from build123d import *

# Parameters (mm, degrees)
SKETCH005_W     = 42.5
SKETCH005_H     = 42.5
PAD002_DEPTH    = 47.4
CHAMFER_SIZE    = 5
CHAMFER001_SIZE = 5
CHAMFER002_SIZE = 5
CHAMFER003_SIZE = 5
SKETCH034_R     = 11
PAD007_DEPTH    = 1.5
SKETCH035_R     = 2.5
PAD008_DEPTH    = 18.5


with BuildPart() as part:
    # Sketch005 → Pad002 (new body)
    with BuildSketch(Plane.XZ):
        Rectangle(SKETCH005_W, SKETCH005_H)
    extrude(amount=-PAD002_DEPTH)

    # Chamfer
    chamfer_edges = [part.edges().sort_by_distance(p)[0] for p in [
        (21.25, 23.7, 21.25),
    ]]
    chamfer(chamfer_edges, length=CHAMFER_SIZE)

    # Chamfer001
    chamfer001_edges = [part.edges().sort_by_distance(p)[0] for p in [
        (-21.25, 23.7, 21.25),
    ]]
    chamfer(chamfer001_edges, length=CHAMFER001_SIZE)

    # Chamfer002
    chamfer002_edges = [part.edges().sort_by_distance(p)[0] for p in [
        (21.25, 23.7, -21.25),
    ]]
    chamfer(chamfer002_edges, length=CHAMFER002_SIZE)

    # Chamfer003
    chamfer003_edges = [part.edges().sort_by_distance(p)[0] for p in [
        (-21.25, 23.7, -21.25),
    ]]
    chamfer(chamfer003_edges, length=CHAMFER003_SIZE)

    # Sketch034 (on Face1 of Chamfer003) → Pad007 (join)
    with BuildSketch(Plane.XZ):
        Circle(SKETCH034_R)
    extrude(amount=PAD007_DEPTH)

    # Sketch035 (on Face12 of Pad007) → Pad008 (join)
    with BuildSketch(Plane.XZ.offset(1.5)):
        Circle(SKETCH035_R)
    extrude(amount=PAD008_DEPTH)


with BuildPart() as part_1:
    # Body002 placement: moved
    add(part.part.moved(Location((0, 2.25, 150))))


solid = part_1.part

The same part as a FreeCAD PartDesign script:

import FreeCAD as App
import Part
import Sketcher
from FreeCAD import Vector
Q = App.Units.Quantity


def edges_at(feature, points):
    """Names of the edges that pass closest to the given points."""
    edges = feature.Shape.Edges
    near = lambda p: min(range(len(edges)), key=lambda i: edges[i].distToShape(Part.Vertex(*p))[0])
    return sorted({f"Edge{near(p) + 1}" for p in points})

doc = App.newDocument("Part")
body = doc.addObject("PartDesign::Body", "Body")

sketch1 = body.newObject("Sketcher::SketchObject", "Sketch")
sketch1.AttachmentSupport = (doc.getObject("XZ_Plane"), [""])
sketch1.MapMode = "FlatFace"
sketch1.addGeometry([
    Part.LineSegment(Vector(-21, 21, 0), Vector(-21, -21, 0)),
    Part.LineSegment(Vector(-21, -21, 0), Vector(21, -21, 0)),
    Part.LineSegment(Vector(21, -21, 0), Vector(21, 21, 0)),
    Part.LineSegment(Vector(21, 21, 0), Vector(-21, 21, 0)),
], False)
sketch1.addConstraint([
    Sketcher.Constraint("Coincident", 0, 2, 1, 1),
    Sketcher.Constraint("Coincident", 1, 2, 2, 1),
    Sketcher.Constraint("Coincident", 2, 2, 3, 1),
    Sketcher.Constraint("Coincident", 3, 2, 0, 1),
    Sketcher.Constraint("Vertical", 0),
    Sketcher.Constraint("Horizontal", 1),
    Sketcher.Constraint("Vertical", 2),
    Sketcher.Constraint("Horizontal", 3),
    Sketcher.Constraint("Symmetric", 0, 2, 2, 2, -1, 1),
    Sketcher.Constraint("Equal", 3, 0),
    Sketcher.Constraint("DistanceX", 1, 1, 1, 2, Q("42.5 mm")),
])
pad1 = body.newObject("PartDesign::Pad", "Pad")
pad1.Profile = sketch1
pad1.Length = 47.4
pad1.Reversed = True
doc.recompute()

chamfer = body.newObject("PartDesign::Chamfer", "Chamfer")
chamfer.Base = (pad1, edges_at(pad1, [(21.25, 23.7, 21.25)]))
chamfer.Size = 5
doc.recompute()

chamfer2 = body.newObject("PartDesign::Chamfer", "Chamfer001")
chamfer2.Base = (chamfer, edges_at(chamfer, [(-21.25, 23.7, 21.25)]))
chamfer2.Size = 5
doc.recompute()

chamfer3 = body.newObject("PartDesign::Chamfer", "Chamfer002")
chamfer3.Base = (chamfer2, edges_at(chamfer2, [(21.25, 23.7, -21.25)]))
chamfer3.Size = 5
doc.recompute()

chamfer4 = body.newObject("PartDesign::Chamfer", "Chamfer003")
chamfer4.Base = (chamfer3, edges_at(chamfer3, [(-21.25, 23.7, -21.25)]))
chamfer4.Size = 5

sketch2 = body.newObject("Sketcher::SketchObject", "Sketch001")
sketch2.AttachmentSupport = (doc.getObject("XZ_Plane"), [""])
sketch2.MapMode = "FlatFace"
sketch2.addGeometry(Part.Circle(Vector(0, 0, 0), Vector(0, 0, 1), 11), False)
sketch2.addConstraint([
    Sketcher.Constraint("Coincident", 0, 3, -1, 1),
    Sketcher.Constraint("Diameter", 0, Q("22 mm")),
])
pad2 = body.newObject("PartDesign::Pad", "Pad001")
pad2.Profile = sketch2
pad2.Length = 1.5

sketch3 = body.newObject("Sketcher::SketchObject", "Sketch002")
sketch3.AttachmentSupport = (doc.getObject("XZ_Plane"), [""])
sketch3.MapMode = "FlatFace"
sketch3.AttachmentOffset = App.Placement(Vector(0, 0, 1.5), App.Rotation())
sketch3.addGeometry(Part.Circle(Vector(0, 0, 0), Vector(0, 0, 1), 2.5), False)
sketch3.addConstraint([
    Sketcher.Constraint("Coincident", 0, 3, -1, 1),
    Sketcher.Constraint("Diameter", 0, Q("5 mm")),
])
pad3 = body.newObject("PartDesign::Pad", "Pad002")
pad3.Profile = sketch3
pad3.Length = 18.5
body2 = doc.addObject("PartDesign::Body", "Body001")
doc.recompute()

body.Placement = App.Placement(Vector(0, 2.25, 150), App.Rotation(Vector(0, 0, 1), 0))
boolean = body2.newObject("PartDesign::Boolean", "Boolean")
boolean.Type = "Fuse"
boolean.addObjects([body])

doc.recompute()
